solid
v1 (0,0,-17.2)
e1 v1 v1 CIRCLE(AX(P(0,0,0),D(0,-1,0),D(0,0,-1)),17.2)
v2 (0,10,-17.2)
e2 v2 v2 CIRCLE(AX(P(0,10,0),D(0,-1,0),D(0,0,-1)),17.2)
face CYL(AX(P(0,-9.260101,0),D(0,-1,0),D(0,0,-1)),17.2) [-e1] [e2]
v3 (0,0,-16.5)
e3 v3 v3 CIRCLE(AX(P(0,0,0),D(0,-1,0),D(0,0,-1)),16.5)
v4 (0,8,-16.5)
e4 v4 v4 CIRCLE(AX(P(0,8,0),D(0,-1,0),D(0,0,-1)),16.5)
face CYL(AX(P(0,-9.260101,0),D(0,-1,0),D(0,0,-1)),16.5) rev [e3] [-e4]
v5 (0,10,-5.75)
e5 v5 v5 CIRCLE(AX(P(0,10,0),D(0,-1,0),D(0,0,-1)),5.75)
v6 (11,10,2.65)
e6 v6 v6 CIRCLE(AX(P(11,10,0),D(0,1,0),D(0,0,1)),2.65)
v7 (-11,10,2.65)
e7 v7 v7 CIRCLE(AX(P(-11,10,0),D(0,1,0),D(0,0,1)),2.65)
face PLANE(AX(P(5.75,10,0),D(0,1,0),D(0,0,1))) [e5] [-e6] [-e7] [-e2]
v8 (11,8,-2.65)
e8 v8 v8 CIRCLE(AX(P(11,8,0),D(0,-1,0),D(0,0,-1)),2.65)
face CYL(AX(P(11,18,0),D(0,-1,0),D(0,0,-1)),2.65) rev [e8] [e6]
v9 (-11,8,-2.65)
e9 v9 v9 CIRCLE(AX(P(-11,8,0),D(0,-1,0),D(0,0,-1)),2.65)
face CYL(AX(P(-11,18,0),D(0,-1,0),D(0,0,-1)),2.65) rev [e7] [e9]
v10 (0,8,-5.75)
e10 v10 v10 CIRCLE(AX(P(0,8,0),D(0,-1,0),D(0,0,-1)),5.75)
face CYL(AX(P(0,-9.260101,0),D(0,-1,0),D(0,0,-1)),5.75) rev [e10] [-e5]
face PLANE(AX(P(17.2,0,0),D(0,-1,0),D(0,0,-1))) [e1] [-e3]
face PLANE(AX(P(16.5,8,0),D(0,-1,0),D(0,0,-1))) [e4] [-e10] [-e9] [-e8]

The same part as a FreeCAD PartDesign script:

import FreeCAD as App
import Part
import Sketcher
from FreeCAD import Vector
Q = App.Units.Quantity


def add_polygon(sketch, points):
    """Adds a closed chain of lines whose ends are joined by coincident constraints."""
    first, n = sketch.GeometryCount, len(points)
    for a, b in zip(points, points[1:] + points[:1]):
        sketch.addGeometry(Part.LineSegment(App.Vector(*a, 0), App.Vector(*b, 0)), False)
    for i in range(n):
        sketch.addConstraint(Sketcher.Constraint("Coincident", first + i, 2, first + (i + 1) % n, 1))

doc = App.newDocument("Part")
body = doc.addObject("PartDesign::Body", "Body")

sketch1 = body.newObject("Sketcher::SketchObject", "Sketch")
sketch1.AttachmentSupport = (doc.getObject("XY_Plane"), [""])
sketch1.MapMode = "FlatFace"
add_polygon(sketch1, [(17.2, 10), (5.8, 10), (5.8, 8), (16.5, 8), (16.5, 0), (17.2, 0)])
sketch1.addConstraint([
    Sketcher.Constraint("Horizontal", 0),
    Sketcher.Constraint("Vertical", 1),
    Sketcher.Constraint("Horizontal", 2),
    Sketcher.Constraint("Vertical", 3),
    Sketcher.Constraint("Horizontal", 4),
    Sketcher.Constraint("Vertical", 5),
    Sketcher.Constraint("PointOnObject", 3, 2, -1),
    Sketcher.Constraint("DistanceY", 1, 2, 1, 1, Q("2 mm")),
    Sketcher.Constraint("DistanceY", 3, 2, 3, 1, Q("8 mm")),
    Sketcher.Constraint("DistanceX", 4, 1, 4, 2, Q("0.7 mm")),
    Sketcher.Constraint("DistanceX", 0, 2, 0, 1, Q("11.45 mm")),
    Sketcher.Constraint("DistanceX", -1, 1, 2, 2, Q("16.5 mm")),
])
revolution = body.newObject("PartDesign::Revolution", "Revolution")
revolution.Profile = sketch1
revolution.ReferenceAxis = (sketch1, ["V_Axis"])
revolution.Angle = 360

sketch2 = body.newObject("Sketcher::SketchObject", "Sketch001")
sketch2.AttachmentSupport = (doc.getObject("XZ_Plane"), [""])
sketch2.MapMode = "FlatFace"
sketch2.AttachmentOffset = App.Placement(Vector(0, 0, -8), App.Rotation())
sketch2.addGeometry([
    Part.Circle(Vector(-11, 0, 0), Vector(0, 0, 1), 2.6),
    Part.Circle(Vector(11, 0, 0), Vector(0, 0, 1), 2.6),
], False)
sketch2.addConstraint([
    Sketcher.Constraint("Equal", 0, 1),
    Sketcher.Constraint("Symmetric", 0, 3, 1, 3, -1, 1),
    Sketcher.Constraint("PointOnObject", 0, 3, -1),
    Sketcher.Constraint("Diameter", 0, Q("5.3 mm")),
    Sketcher.Constraint("DistanceX", 0, 3, -1, 1, Q("11 mm")),
])
pocket1 = body.newObject("PartDesign::Pocket", "Pocket")
pocket1.Profile = sketch2
pocket1.Length = 10

doc.recompute()
